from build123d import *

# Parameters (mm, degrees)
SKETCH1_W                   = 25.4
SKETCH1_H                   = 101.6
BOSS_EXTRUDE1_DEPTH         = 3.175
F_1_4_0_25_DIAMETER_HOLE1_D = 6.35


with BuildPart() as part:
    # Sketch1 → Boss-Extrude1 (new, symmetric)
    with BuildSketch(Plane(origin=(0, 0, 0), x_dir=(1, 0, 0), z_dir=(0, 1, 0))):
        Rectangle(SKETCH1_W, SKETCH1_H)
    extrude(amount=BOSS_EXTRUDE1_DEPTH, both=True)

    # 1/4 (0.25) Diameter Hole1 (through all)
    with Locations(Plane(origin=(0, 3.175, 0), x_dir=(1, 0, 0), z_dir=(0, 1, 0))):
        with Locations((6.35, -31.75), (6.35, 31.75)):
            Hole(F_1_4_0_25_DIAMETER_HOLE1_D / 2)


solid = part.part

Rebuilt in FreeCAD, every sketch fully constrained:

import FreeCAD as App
import Part
import Sketcher
from FreeCAD import Vector
Q = App.Units.Quantity

doc = App.newDocument("Part")
body = doc.addObject("PartDesign::Body", "Body")

# Sketch on XZ plane
sketch1 = body.newObject("Sketcher::SketchObject", "Sketch")
sketch1.AttachmentSupport = (doc.getObject("XZ_Plane"), [""])
sketch1.MapMode = "FlatFace"
sketch1.addGeometry([
    Part.LineSegment(Vector(-12.7, -50.8, 0), Vector(-12.7, 50.8, 0)),
    Part.LineSegment(Vector(-12.7, 50.8, 0), Vector(12.7, 50.8, 0)),
    Part.LineSegment(Vector(12.7, 50.8, 0), Vector(12.7, -50.8, 0)),
    Part.LineSegment(Vector(12.7, -50.8, 0), Vector(-12.7, -50.8, 0)),
], False)
sketch1.addConstraint([
    Sketcher.Constraint("Coincident", 0, 2, 1, 1),
    Sketcher.Constraint("Coincident", 1, 2, 2, 1),
    Sketcher.Constraint("Coincident", 2, 2, 3, 1),
    Sketcher.Constraint("Coincident", 3, 2, 0, 1),
    Sketcher.Constraint("Vertical", 0),
    Sketcher.Constraint("Horizontal", 1),
    Sketcher.Constraint("Vertical", 2),
    Sketcher.Constraint("Horizontal", 3),
    Sketcher.Constraint("Symmetric", 0, 2, 2, 2, -1, 1),
    Sketcher.Constraint("DistanceX", 1, 1, 1, 2, Q("1 in")),
    Sketcher.Constraint("DistanceY", 0, 1, 0, 2, Q("4 in")),
])
pad1 = body.newObject("PartDesign::Pad", "Pad")
pad1.Profile = sketch1
pad1.Length = Q("0.25 in")
pad1.Midplane = True

# Sketch on XZ plane
sketch2 = body.newObject("Sketcher::SketchObject", "Sketch001")
sketch2.AttachmentSupport = (doc.getObject("XZ_Plane"), [""])
sketch2.MapMode = "FlatFace"
sketch2.AttachmentOffset = App.Placement(Vector(0, 0, -0.125 * 25.4), App.Rotation())
sketch2.addGeometry([
    Part.Circle(Vector(6.35, 31.75, 0), Vector(0, 0, 1), 3.175),
    Part.Circle(Vector(6.35, -31.75, 0), Vector(0, 0, 1), 3.175),
], False)
sketch2.addConstraint([
    Sketcher.Constraint("Equal", 0, 1),
    Sketcher.Constraint("Symmetric", 0, 3, 1, 3, -1),
    Sketcher.Constraint("Diameter", 0, Q("0.25 in")),
    Sketcher.Constraint("DistanceY", 1, 3, 0, 3, Q("2.5 in")),
    Sketcher.Constraint("DistanceX", -1, 1, 0, 3, Q("0.25 in")),
])
doc.recompute()
hole = body.newObject("PartDesign::Hole", "Hole")
hole.Profile = sketch2
hole.ThreadType = "None"
hole.Diameter = Q("0.25 in")
hole.DepthType = "ThroughAll"
hole.Reversed = True

doc.recompute()
